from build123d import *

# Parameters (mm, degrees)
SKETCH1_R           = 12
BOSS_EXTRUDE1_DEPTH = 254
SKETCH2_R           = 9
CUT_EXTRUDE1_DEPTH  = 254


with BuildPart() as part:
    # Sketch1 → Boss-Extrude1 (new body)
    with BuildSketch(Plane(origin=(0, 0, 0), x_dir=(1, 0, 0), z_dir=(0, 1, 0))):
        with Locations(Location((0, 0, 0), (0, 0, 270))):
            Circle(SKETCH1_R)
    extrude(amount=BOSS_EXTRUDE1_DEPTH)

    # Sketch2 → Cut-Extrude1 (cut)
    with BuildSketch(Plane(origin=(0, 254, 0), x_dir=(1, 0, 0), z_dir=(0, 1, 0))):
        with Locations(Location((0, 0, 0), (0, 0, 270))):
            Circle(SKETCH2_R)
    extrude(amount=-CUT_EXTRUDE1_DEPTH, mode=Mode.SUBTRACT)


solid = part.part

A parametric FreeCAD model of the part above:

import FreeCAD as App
import Part
import Sketcher
from FreeCAD import Vector
Q = App.Units.Quantity

doc = App.newDocument("Part")
body = doc.addObject("PartDesign::Body", "Body")

# Sketch on XZ plane
sketch1 = body.newObject("Sketcher::SketchObject", "Sketch")
sketch1.AttachmentSupport = (doc.getObject("XZ_Plane"), [""])
sketch1.MapMode = "FlatFace"
sketch1.addGeometry(Part.Circle(Vector(0, 0, 0), Vector(0, 0, 1), 12), False)
sketch1.addConstraint([
    Sketcher.Constraint("Coincident", 0, 3, -1, 1),
    Sketcher.Constraint("Diameter", 0, Q("24 mm")),
])
pad1 = body.newObject("PartDesign::Pad", "Pad")
pad1.Profile = sketch1
pad1.Length = 254
pad1.Reversed = True

# Sketch on XZ plane
sketch2 = body.newObject("Sketcher::SketchObject", "Sketch001")
sketch2.AttachmentSupport = (doc.getObject("XZ_Plane"), [""])
sketch2.MapMode = "FlatFace"
sketch2.AttachmentOffset = App.Placement(Vector(0, 0, -254), App.Rotation())
sketch2.addGeometry(Part.Circle(Vector(0, 0, 0), Vector(0, 0, 1), 9), False)
sketch2.addConstraint([
    Sketcher.Constraint("Coincident", 0, 3, -1, 1),
    Sketcher.Constraint("Diameter", 0, Q("18 mm")),
])
pocket1 = body.newObject("PartDesign::Pocket", "Pocket")
pocket1.Profile = sketch2
pocket1.Length = 254
pocket1.Reversed = True

doc.recompute()
